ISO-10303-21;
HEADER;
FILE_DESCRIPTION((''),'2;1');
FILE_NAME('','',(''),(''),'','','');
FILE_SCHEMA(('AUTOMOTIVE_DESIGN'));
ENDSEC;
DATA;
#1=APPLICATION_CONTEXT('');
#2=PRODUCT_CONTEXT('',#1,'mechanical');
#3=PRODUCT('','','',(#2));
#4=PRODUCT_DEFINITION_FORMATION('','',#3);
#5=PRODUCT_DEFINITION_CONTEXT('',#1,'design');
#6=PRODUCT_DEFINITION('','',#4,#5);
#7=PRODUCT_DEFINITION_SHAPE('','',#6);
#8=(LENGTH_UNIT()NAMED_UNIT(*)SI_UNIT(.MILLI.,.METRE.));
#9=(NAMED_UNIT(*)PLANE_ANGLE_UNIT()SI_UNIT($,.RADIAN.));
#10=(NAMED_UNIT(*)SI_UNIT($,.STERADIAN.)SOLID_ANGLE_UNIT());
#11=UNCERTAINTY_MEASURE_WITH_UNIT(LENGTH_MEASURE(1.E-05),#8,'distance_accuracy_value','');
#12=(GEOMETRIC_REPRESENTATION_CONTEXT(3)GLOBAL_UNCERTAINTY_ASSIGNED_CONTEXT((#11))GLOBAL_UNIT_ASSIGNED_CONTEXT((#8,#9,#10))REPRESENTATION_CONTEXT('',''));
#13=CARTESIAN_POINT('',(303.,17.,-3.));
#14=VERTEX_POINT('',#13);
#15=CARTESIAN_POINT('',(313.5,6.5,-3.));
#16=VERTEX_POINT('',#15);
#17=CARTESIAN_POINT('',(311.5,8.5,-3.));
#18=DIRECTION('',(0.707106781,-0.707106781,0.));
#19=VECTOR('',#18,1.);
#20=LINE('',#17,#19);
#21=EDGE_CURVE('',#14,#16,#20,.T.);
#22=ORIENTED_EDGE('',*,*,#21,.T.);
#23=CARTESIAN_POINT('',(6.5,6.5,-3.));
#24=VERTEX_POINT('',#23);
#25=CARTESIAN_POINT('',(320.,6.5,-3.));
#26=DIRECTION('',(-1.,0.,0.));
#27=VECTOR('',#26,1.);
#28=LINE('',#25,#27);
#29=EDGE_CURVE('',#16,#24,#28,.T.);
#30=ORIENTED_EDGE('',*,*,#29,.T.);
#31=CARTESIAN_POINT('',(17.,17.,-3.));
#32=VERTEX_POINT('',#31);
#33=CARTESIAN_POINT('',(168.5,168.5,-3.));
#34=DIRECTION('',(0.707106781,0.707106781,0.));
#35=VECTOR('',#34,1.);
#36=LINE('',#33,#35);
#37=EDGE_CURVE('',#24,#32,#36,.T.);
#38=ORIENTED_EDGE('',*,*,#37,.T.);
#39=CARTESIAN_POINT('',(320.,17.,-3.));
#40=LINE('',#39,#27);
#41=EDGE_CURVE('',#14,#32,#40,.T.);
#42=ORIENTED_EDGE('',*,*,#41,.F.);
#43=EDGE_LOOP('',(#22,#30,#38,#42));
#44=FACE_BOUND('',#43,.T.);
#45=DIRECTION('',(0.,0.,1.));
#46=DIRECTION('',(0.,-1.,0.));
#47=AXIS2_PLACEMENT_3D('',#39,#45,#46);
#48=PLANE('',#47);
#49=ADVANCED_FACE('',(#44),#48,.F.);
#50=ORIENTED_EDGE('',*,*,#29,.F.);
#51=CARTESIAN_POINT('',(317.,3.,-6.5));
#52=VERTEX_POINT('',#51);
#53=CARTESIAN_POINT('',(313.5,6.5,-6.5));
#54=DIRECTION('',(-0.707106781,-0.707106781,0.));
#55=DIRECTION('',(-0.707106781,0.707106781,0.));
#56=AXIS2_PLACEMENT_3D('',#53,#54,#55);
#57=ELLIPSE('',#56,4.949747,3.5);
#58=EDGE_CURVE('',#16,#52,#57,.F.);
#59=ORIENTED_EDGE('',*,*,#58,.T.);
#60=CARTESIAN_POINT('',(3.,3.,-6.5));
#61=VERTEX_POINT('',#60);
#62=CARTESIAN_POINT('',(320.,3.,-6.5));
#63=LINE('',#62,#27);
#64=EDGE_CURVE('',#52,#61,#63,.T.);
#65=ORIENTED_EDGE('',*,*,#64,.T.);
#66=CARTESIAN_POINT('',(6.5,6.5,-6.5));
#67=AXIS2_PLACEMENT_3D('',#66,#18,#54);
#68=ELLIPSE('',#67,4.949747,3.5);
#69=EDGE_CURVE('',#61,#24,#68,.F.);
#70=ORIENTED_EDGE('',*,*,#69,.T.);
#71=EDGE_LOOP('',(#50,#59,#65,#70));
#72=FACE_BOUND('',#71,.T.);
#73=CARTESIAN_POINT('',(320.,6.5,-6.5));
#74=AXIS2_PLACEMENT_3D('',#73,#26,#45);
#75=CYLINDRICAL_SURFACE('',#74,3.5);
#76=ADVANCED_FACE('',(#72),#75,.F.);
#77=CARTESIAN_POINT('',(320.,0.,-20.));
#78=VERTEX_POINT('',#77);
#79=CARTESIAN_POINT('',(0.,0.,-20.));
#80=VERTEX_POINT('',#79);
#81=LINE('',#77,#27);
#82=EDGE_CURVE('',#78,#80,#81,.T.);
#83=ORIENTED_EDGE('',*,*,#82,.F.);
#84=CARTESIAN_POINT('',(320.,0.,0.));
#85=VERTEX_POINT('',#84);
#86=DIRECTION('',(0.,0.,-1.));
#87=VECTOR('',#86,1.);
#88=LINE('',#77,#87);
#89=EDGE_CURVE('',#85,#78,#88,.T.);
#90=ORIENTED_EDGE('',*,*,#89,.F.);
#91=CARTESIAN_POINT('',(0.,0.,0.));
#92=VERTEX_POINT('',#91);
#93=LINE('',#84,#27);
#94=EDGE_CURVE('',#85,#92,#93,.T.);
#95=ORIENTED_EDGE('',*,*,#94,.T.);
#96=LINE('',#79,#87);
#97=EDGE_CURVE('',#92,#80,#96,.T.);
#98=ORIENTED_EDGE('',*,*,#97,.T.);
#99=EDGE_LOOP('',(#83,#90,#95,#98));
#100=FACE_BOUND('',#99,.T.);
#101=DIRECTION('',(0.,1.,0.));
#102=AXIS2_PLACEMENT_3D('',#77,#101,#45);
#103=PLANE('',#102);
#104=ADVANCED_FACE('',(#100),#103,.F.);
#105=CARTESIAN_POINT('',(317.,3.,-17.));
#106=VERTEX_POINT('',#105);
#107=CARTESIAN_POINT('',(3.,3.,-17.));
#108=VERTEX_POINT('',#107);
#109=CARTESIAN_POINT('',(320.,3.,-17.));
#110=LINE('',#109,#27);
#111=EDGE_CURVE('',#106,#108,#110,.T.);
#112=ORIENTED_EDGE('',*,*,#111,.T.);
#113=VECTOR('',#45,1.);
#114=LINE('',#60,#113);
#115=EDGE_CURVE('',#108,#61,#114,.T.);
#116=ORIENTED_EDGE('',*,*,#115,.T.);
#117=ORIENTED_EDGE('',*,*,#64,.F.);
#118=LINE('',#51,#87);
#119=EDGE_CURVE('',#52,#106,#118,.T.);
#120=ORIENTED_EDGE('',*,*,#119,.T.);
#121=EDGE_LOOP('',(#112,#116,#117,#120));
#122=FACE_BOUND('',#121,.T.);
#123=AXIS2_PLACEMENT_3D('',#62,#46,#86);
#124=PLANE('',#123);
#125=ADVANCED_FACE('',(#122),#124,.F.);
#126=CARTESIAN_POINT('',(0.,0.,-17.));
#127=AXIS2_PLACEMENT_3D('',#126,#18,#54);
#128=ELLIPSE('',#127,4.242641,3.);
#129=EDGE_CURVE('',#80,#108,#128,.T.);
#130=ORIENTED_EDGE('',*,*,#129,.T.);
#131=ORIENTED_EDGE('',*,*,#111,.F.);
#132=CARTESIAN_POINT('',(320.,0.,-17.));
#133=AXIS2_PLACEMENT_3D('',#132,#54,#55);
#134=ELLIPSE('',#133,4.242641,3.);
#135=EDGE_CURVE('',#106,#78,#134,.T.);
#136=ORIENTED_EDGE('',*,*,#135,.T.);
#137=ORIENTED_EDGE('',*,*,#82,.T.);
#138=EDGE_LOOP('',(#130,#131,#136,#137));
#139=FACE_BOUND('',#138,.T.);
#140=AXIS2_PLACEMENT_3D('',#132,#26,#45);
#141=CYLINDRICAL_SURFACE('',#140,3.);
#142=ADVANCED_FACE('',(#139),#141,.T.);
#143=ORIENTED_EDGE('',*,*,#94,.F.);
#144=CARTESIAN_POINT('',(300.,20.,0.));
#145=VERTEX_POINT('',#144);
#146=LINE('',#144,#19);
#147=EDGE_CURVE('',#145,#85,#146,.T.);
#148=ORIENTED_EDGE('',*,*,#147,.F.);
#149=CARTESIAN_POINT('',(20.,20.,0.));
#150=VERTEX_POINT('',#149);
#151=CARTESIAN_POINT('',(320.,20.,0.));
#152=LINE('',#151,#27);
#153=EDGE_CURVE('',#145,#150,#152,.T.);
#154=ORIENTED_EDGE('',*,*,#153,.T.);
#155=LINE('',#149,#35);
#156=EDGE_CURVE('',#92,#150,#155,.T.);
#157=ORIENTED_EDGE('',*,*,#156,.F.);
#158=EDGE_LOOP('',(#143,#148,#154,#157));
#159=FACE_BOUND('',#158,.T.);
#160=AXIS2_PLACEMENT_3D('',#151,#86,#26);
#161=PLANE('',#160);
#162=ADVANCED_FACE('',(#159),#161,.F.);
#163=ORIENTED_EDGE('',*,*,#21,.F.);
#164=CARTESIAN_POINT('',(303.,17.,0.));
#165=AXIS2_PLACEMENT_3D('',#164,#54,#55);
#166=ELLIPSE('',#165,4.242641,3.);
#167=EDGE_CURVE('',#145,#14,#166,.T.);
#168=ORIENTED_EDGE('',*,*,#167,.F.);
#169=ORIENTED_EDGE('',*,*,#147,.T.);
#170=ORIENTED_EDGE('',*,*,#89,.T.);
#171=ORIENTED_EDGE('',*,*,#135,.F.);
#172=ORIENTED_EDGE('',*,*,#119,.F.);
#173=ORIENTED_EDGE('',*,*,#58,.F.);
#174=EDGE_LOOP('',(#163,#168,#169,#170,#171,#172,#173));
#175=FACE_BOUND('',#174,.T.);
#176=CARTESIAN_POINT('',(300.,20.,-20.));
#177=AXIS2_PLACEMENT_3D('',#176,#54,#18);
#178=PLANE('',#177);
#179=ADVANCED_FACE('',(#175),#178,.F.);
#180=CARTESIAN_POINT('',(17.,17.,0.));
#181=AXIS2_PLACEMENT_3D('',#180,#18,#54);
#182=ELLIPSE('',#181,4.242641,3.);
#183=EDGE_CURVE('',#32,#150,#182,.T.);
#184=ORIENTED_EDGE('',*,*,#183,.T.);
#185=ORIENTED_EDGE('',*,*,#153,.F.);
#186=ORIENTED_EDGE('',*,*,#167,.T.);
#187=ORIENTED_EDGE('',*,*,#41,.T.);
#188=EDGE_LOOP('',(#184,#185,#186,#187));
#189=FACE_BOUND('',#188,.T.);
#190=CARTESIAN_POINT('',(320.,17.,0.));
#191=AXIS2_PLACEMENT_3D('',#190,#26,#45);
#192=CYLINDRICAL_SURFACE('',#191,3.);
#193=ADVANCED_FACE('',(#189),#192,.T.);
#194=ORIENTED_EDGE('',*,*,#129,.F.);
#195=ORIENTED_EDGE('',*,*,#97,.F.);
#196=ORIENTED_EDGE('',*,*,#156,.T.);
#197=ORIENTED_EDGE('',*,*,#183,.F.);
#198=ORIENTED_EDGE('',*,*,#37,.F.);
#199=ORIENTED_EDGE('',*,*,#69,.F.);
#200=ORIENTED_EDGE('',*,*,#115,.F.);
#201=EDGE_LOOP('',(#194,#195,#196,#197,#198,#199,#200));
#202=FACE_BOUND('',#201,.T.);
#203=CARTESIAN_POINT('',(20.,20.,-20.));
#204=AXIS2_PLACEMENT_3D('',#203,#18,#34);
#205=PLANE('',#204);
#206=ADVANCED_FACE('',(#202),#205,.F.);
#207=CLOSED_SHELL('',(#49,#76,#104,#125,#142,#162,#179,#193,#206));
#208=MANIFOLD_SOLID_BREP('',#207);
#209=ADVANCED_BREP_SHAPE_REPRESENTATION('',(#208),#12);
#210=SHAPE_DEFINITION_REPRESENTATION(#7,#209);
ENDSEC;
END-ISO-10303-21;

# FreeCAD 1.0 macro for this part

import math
import FreeCAD as App
import Part
import Sketcher
from FreeCAD import Vector

doc = App.newDocument("Part")
body = doc.addObject("PartDesign::Body", "Body")

sketch1 = body.newObject("Sketcher::SketchObject", "Sketch")
sketch1.AttachmentSupport = (doc.getObject("YZ_Plane"), [""])
sketch1.MapMode = "FlatFace"
sketch1.addGeometry(Part.LineSegment(Vector(20, 0, 0), Vector(0, 0, 0)), False)
sketch1.addGeometry(Part.LineSegment(Vector(0, 0, 0), Vector(0, -20, 0)), False)
sketch1.addGeometry(Part.ArcOfCircle(Part.Circle(Vector(0, -17, 0), Vector(0, 0, 1), 3), math.radians(-90), math.radians(0)), False)
sketch1.addGeometry(Part.LineSegment(Vector(3, -17, 0), Vector(3, -6.5, 0)), False)
sketch1.addGeometry(Part.ArcOfCircle(Part.Circle(Vector(6.5, -6.5, 0), Vector(0, 0, 1), 3.5), math.radians(90), math.radians(180)), False)
sketch1.addGeometry(Part.LineSegment(Vector(6.5, -3, 0), Vector(17, -3, 0)), False)
sketch1.addGeometry(Part.ArcOfCircle(Part.Circle(Vector(17, 0, 0), Vector(0, 0, 1), 3), math.radians(-90), math.radians(0)), False)
sketch1.addConstraint(Sketcher.Constraint("Coincident", 0, 2, 1, 1))
sketch1.addConstraint(Sketcher.Constraint("Coincident", 1, 2, 2, 1))
sketch1.addConstraint(Sketcher.Constraint("Tangent", 2, 2, 3, 1))
sketch1.addConstraint(Sketcher.Constraint("Tangent", 3, 2, 4, 2))
sketch1.addConstraint(Sketcher.Constraint("Tangent", 4, 1, 5, 1))
sketch1.addConstraint(Sketcher.Constraint("Tangent", 5, 2, 6, 1))
sketch1.addConstraint(Sketcher.Constraint("Coincident", 6, 2, 0, 1))
sketch1.addConstraint(Sketcher.Constraint("Horizontal", 0))
sketch1.addConstraint(Sketcher.Constraint("Vertical", 1))
sketch1.addConstraint(Sketcher.Constraint("Vertical", 3))
sketch1.addConstraint(Sketcher.Constraint("Horizontal", 5))
sketch1.addConstraint(Sketcher.Constraint("Coincident", 0, 2, -1, 1))
sketch1.addConstraint(Sketcher.Constraint("Equal", 2, 6))
sketch1.addConstraint(Sketcher.Constraint("PointOnObject", 2, 3, -2))
sketch1.addConstraint(Sketcher.Constraint("PointOnObject", 6, 3, -1))
sketch1.addConstraint(Sketcher.Constraint("Equal", 0, 1))
sketch1.addConstraint(Sketcher.Constraint("Radius", 2, 3.0))
sketch1.addConstraint(Sketcher.Constraint("Radius", 4, 3.5))
sketch1.addConstraint(Sketcher.Constraint("DistanceX", 0, 2, 0, 1, 20.0))
pad1 = body.newObject("PartDesign::Pad", "Pad")
pad1.Profile = sketch1
pad1.Length = 320

sketch2 = body.newObject("Sketcher::SketchObject", "Sketch001")
sketch2.AttachmentSupport = (doc.getObject("XY_Plane"), [""])
sketch2.MapMode = "FlatFace"
sketch2.addGeometry(Part.LineSegment(Vector(320, 0, 0), Vector(320, 20, 0)), False)
sketch2.addGeometry(Part.LineSegment(Vector(320, 20, 0), Vector(300, 20, 0)), False)
sketch2.addGeometry(Part.LineSegment(Vector(300, 20, 0), Vector(320, 0, 0)), False)
sketch2.addGeometry(Part.LineSegment(Vector(0, 20, 0), Vector(0, 0, 0)), False)
sketch2.addGeometry(Part.LineSegment(Vector(0, 0, 0), Vector(20, 20, 0)), False)
sketch2.addGeometry(Part.LineSegment(Vector(20, 20, 0), Vector(0, 20, 0)), False)
sketch2.addConstraint(Sketcher.Constraint("Coincident", 0, 2, 1, 1))
sketch2.addConstraint(Sketcher.Constraint("Coincident", 1, 2, 2, 1))
sketch2.addConstraint(Sketcher.Constraint("Coincident", 2, 2, 0, 1))
sketch2.addConstraint(Sketcher.Constraint("Coincident", 3, 2, 4, 1))
sketch2.addConstraint(Sketcher.Constraint("Coincident", 4, 2, 5, 1))
sketch2.addConstraint(Sketcher.Constraint("Coincident", 5, 2, 3, 1))
sketch2.addConstraint(Sketcher.Constraint("Vertical", 0))
sketch2.addConstraint(Sketcher.Constraint("Horizontal", 1))
sketch2.addConstraint(Sketcher.Constraint("Vertical", 3))
sketch2.addConstraint(Sketcher.Constraint("Horizontal", 5))
sketch2.addConstraint(Sketcher.Constraint("Coincident", 3, 2, -1, 1))
sketch2.addConstraint(Sketcher.Constraint("PointOnObject", 2, 2, -1))
sketch2.addConstraint(Sketcher.Constraint("Perpendicular", 2, 4))
sketch2.addConstraint(Sketcher.Constraint("Horizontal", 1, 2, 4, 2))
sketch2.addConstraint(Sketcher.Constraint("Equal", 1, 5))
sketch2.addConstraint(Sketcher.Constraint("DistanceX", 1, 2, 1, 1, 20.0))
sketch2.addConstraint(Sketcher.Constraint("DistanceX", -1, 1, 0, 2, 320.0))
pocket1 = body.newObject("PartDesign::Pocket", "Pocket")
pocket1.Profile = sketch2
pocket1.Type = "ThroughAll"

doc.recompute()
